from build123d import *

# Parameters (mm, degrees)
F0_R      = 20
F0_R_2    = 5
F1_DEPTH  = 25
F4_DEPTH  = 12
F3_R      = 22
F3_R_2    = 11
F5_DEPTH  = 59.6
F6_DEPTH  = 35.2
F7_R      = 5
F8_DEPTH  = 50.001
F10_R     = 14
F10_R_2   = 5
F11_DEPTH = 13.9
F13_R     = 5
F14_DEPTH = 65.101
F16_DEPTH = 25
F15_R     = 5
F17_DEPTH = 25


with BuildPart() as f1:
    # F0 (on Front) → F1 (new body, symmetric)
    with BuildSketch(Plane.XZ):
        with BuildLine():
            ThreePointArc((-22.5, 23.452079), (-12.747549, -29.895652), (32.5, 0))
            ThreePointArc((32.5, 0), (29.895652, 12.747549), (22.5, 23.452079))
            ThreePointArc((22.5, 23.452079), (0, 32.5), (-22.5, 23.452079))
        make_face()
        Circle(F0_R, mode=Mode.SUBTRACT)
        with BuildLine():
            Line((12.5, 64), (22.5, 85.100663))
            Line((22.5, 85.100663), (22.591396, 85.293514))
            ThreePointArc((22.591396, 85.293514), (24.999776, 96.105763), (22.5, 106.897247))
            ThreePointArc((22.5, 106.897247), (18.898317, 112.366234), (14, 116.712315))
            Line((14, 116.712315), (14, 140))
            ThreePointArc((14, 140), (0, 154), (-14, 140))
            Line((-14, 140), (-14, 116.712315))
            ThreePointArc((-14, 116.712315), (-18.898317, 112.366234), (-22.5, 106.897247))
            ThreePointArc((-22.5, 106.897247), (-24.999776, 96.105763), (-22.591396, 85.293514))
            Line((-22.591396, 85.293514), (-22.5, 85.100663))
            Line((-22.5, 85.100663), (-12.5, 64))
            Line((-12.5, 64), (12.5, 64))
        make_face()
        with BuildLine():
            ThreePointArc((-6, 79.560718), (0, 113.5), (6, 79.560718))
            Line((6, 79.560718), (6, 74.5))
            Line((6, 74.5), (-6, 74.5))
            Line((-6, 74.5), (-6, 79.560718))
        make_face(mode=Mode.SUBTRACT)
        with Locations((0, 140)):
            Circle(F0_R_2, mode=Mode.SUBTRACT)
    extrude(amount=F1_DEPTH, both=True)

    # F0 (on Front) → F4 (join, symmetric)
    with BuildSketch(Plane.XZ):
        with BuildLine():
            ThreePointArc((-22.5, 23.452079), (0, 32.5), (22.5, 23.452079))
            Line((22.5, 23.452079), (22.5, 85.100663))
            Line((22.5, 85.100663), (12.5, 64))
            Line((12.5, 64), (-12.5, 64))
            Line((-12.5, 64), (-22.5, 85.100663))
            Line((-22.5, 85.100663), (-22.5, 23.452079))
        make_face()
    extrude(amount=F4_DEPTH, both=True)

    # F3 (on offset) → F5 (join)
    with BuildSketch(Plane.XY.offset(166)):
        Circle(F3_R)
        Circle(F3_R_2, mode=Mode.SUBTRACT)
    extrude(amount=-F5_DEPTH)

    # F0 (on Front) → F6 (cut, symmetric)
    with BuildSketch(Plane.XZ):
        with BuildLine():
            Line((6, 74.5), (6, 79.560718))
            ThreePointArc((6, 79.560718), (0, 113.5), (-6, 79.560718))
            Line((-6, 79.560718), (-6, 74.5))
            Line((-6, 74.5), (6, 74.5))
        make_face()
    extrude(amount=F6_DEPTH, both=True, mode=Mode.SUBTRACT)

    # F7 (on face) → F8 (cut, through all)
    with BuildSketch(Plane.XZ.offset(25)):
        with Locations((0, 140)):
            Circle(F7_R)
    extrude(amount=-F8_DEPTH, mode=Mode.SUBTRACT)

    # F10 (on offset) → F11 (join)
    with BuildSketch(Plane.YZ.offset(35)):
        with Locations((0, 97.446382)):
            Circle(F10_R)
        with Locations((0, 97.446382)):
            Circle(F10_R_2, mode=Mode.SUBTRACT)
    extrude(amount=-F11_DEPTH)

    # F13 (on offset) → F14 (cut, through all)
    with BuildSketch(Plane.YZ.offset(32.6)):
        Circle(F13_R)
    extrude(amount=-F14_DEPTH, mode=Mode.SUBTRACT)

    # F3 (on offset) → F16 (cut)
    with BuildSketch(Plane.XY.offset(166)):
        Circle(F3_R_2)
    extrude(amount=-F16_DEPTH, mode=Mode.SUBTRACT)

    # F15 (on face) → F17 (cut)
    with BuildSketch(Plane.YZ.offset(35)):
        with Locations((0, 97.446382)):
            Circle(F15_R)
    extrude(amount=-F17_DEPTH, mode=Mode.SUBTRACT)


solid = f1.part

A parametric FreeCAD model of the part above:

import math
import FreeCAD as App
import Part
import Sketcher
Q = App.Units.Quantity

doc = App.newDocument("Part")
body = doc.addObject("PartDesign::Body", "Body")
body.AllowCompound = True

# Sketch on XZ plane
sketch1 = body.newObject("Sketcher::SketchObject", "Sketch")
sketch1.AttachmentSupport = (doc.getObject("XZ_Plane"), [""])
sketch1.MapMode = "FlatFace"
sketch1.addGeometry(Part.ArcOfCircle(Part.Circle(App.Vector(0, 0, 0), App.Vector(0, 0, 1), 32.5), math.radians(134), math.radians(360)), False)
sketch1.addGeometry(Part.ArcOfCircle(Part.Circle(App.Vector(0, 0, 0), App.Vector(0, 0, 1), 32.5), math.radians(0), math.radians(46)), False)
sketch1.addGeometry(Part.ArcOfCircle(Part.Circle(App.Vector(0, 0, 0), App.Vector(0, 0, 1), 32.5), math.radians(46), math.radians(134)), False)
sketch1.addGeometry(Part.Circle(App.Vector(0, 0, 0), App.Vector(0, 0, 1), 20), False)
sketch1.addGeometry(Part.LineSegment(App.Vector(12.5, 64, 0), App.Vector(22.5, 85.1, 0)), False)
sketch1.addGeometry(Part.LineSegment(App.Vector(22.5, 85.1, 0), App.Vector(22.59, 85.29, 0)), False)
sketch1.addGeometry(Part.ArcOfCircle(Part.Circle(App.Vector(0, 96, 0), App.Vector(0, 0, 1), 25), math.radians(-25), math.radians(26)), False)
sketch1.addGeometry(Part.ArcOfCircle(Part.Circle(App.Vector(0, 96, 0), App.Vector(0, 0, 1), 25), math.radians(26), math.radians(56)), False)
sketch1.addGeometry(Part.LineSegment(App.Vector(14, 116.71, 0), App.Vector(14, 140, 0)), False)
sketch1.addGeometry(Part.ArcOfCircle(Part.Circle(App.Vector(0, 140, 0), App.Vector(0, 0, 1), 14), math.radians(0), math.radians(180)), False)
sketch1.addGeometry(Part.LineSegment(App.Vector(-14, 140, 0), App.Vector(-14, 116.71, 0)), False)
sketch1.addGeometry(Part.ArcOfCircle(Part.Circle(App.Vector(0, 96, 0), App.Vector(0, 0, 1), 25), math.radians(124), math.radians(154)), False)
sketch1.addGeometry(Part.ArcOfCircle(Part.Circle(App.Vector(0, 96, 0), App.Vector(0, 0, 1), 25), math.radians(154), math.radians(205)), False)
sketch1.addGeometry(Part.LineSegment(App.Vector(-22.59, 85.29, 0), App.Vector(-22.5, 85.1, 0)), False)
sketch1.addGeometry(Part.LineSegment(App.Vector(-22.5, 85.1, 0), App.Vector(-12.5, 64, 0)), False)
sketch1.addGeometry(Part.LineSegment(App.Vector(-12.5, 64, 0), App.Vector(12.5, 64, 0)), False)
sketch1.addGeometry(Part.LineSegment(App.Vector(-6, 74.5, 0), App.Vector(-6, 79.56, 0)), False)
sketch1.addGeometry(Part.ArcOfCircle(Part.Circle(App.Vector(0, 96, 0), App.Vector(0, 0, 1), 17.5), math.radians(-70), math.radians(250)), False)
sketch1.addGeometry(Part.LineSegment(App.Vector(6, 79.56, 0), App.Vector(6, 74.5, 0)), False)
sketch1.addGeometry(Part.LineSegment(App.Vector(6, 74.5, 0), App.Vector(-6, 74.5, 0)), False)
sketch1.addGeometry(Part.Circle(App.Vector(0, 140, 0), App.Vector(0, 0, 1), 5), False)
sketch1.addConstraint(Sketcher.Constraint("Tangent", 0, 2, 1, 1))
sketch1.addConstraint(Sketcher.Constraint("Tangent", 1, 2, 2, 1))
sketch1.addConstraint(Sketcher.Constraint("Tangent", 2, 2, 0, 1))
sketch1.addConstraint(Sketcher.Constraint("Coincident", 4, 2, 5, 1))
sketch1.addConstraint(Sketcher.Constraint("Tangent", 5, 2, 6, 1))
sketch1.addConstraint(Sketcher.Constraint("Tangent", 6, 2, 7, 1))
sketch1.addConstraint(Sketcher.Constraint("Coincident", 7, 2, 8, 1))
sketch1.addConstraint(Sketcher.Constraint("Tangent", 8, 2, 9, 1))
sketch1.addConstraint(Sketcher.Constraint("Tangent", 9, 2, 10, 1))
sketch1.addConstraint(Sketcher.Constraint("Coincident", 10, 2, 11, 1))
sketch1.addConstraint(Sketcher.Constraint("Tangent", 11, 2, 12, 1))
sketch1.addConstraint(Sketcher.Constraint("Tangent", 12, 2, 13, 1))
sketch1.addConstraint(Sketcher.Constraint("Coincident", 13, 2, 14, 1))
sketch1.addConstraint(Sketcher.Constraint("Coincident", 14, 2, 15, 1))
sketch1.addConstraint(Sketcher.Constraint("Coincident", 15, 2, 4, 1))
sketch1.addConstraint(Sketcher.Constraint("Coincident", 16, 2, 17, 2))
sketch1.addConstraint(Sketcher.Constraint("Coincident", 17, 1, 18, 1))
sketch1.addConstraint(Sketcher.Constraint("Coincident", 18, 2, 19, 1))
sketch1.addConstraint(Sketcher.Constraint("Coincident", 19, 2, 16, 1))
sketch1.addConstraint(Sketcher.Constraint("Vertical", 8))
sketch1.addConstraint(Sketcher.Constraint("Vertical", 10))
sketch1.addConstraint(Sketcher.Constraint("Horizontal", 15))
sketch1.addConstraint(Sketcher.Constraint("Vertical", 16))
sketch1.addConstraint(Sketcher.Constraint("Vertical", 18))
sketch1.addConstraint(Sketcher.Constraint("Horizontal", 19))
sketch1.addConstraint(Sketcher.Constraint("Coincident", 0, 3, -1, 1))
sketch1.addConstraint(Sketcher.Constraint("Coincident", 3, 3, -1, 1))
sketch1.addConstraint(Sketcher.Constraint("Coincident", 11, 3, 6, 3))
sketch1.addConstraint(Sketcher.Constraint("Coincident", 17, 3, 6, 3))
sketch1.addConstraint(Sketcher.Constraint("Coincident", 20, 3, 9, 3))
sketch1.addConstraint(Sketcher.Constraint("Equal", 7, 11))
sketch1.addConstraint(Sketcher.Constraint("Equal", 6, 12))
sketch1.addConstraint(Sketcher.Constraint("Symmetric", 7, 2, 10, 2, -2))
sketch1.addConstraint(Sketcher.Constraint("Symmetric", 6, 2, 11, 2, -2))
sketch1.addConstraint(Sketcher.Constraint("Symmetric", 4, 2, 13, 2, -2))
sketch1.addConstraint(Sketcher.Constraint("PointOnObject", 0, 2, -1))
sketch1.addConstraint(Sketcher.Constraint("Parallel", 4, 5))
sketch1.addConstraint(Sketcher.Constraint("Parallel", 13, 14))
sketch1.addConstraint(Sketcher.Constraint("Horizontal", 1, 2, 2, 2))
sketch1.addConstraint(Sketcher.Constraint("Horizontal", 16, 2, 17, 1))
sketch1.addConstraint(Sketcher.Constraint("Vertical", 1, 2, 4, 2))
sketch1.addConstraint(Sketcher.Constraint("Vertical", 4, 2, 6, 2))
sketch1.addConstraint(Sketcher.Constraint("Diameter", 3, Q("40 mm")))
sketch1.addConstraint(Sketcher.Constraint("Diameter", 20, Q("10 mm")))
sketch1.addConstraint(Sketcher.Constraint("Radius", 9, Q("14 mm")))
sketch1.addConstraint(Sketcher.Constraint("Radius", 0, Q("32.5 mm")))
sketch1.addConstraint(Sketcher.Constraint("Radius", 17, Q("17.5 mm")))
sketch1.addConstraint(Sketcher.Constraint("DistanceX", 15, 1, 15, 2, Q("25 mm")))
sketch1.addConstraint(Sketcher.Constraint("DistanceX", 19, 2, 19, 1, Q("12 mm")))
sketch1.addConstraint(Sketcher.Constraint("DistanceY", -1, 1, 6, 3, Q("95.999999 mm")))
sketch1.addConstraint(Sketcher.Constraint("DistanceY", -1, 1, 9, 3, Q("140 mm")))
sketch1.addConstraint(Sketcher.Constraint("DistanceY", -1, 1, 14, 2, Q("64 mm")))
sketch1.addConstraint(Sketcher.Constraint("DistanceX", 1, 2, 0, 2, Q("10 mm")))
sketch1.addConstraint(Sketcher.Constraint("DistanceY", -1, 1, 18, 2, Q("74.5 mm")))
sketch1.addConstraint(Sketcher.Constraint("Radius", 6, Q("25.000003 mm")))
pad1 = body.newObject("PartDesign::Pad", "Pad")
pad1.Profile = sketch1
pad1.Length = 50
pad1.Midplane = True

# Sketch on XZ plane
sketch2 = body.newObject("Sketcher::SketchObject", "Sketch001")
sketch2.AttachmentSupport = (doc.getObject("XZ_Plane"), [""])
sketch2.MapMode = "FlatFace"
sketch2.addGeometry(Part.ArcOfCircle(Part.Circle(App.Vector(0, 0, 0), App.Vector(0, 0, 1), 33), math.radians(46), math.radians(134)), False)
sketch2.addGeometry(Part.LineSegment(App.Vector(22, 23, 0), App.Vector(22, 85, 0)), False)
sketch2.addGeometry(Part.LineSegment(App.Vector(22, 85, 0), App.Vector(12, 64, 0)), False)
sketch2.addGeometry(Part.LineSegment(App.Vector(12, 64, 0), App.Vector(-12, 64, 0)), False)
sketch2.addGeometry(Part.LineSegment(App.Vector(-12, 64, 0), App.Vector(-22, 85, 0)), False)
sketch2.addGeometry(Part.LineSegment(App.Vector(-22, 85, 0), App.Vector(-22, 23, 0)), False)
sketch2.addConstraint(Sketcher.Constraint("Coincident", 0, 1, 1, 1))
sketch2.addConstraint(Sketcher.Constraint("Coincident", 1, 2, 2, 1))
sketch2.addConstraint(Sketcher.Constraint("Coincident", 2, 2, 3, 1))
sketch2.addConstraint(Sketcher.Constraint("Coincident", 3, 2, 4, 1))
sketch2.addConstraint(Sketcher.Constraint("Coincident", 4, 2, 5, 1))
sketch2.addConstraint(Sketcher.Constraint("Coincident", 5, 2, 0, 2))
sketch2.addConstraint(Sketcher.Constraint("Vertical", 1))
sketch2.addConstraint(Sketcher.Constraint("Horizontal", 3))
sketch2.addConstraint(Sketcher.Constraint("Vertical", 5))
sketch2.addConstraint(Sketcher.Constraint("Coincident", 0, 3, -1, 1))
sketch2.addConstraint(Sketcher.Constraint("Symmetric", 1, 2, 4, 2, -2))
sketch2.addConstraint(Sketcher.Constraint("Equal", 2, 4))
sketch2.addConstraint(Sketcher.Constraint("Radius", 0, Q("32.500001 mm")))
sketch2.addConstraint(Sketcher.Constraint("DistanceX", 3, 2, 3, 1, Q("25 mm")))
sketch2.addConstraint(Sketcher.Constraint("DistanceY", -1, 1, 2, 2, Q("64 mm")))
sketch2.addConstraint(Sketcher.Constraint("DistanceX", 2, 2, 1, 2, Q("10 mm")))
sketch2.addConstraint(Sketcher.Constraint("Distance", 2, Q("23.350331 mm")))
pad2 = body.newObject("PartDesign::Pad", "Pad001")
pad2.Profile = sketch2
pad2.Length = 24
pad2.Midplane = True

# Sketch on XY plane
sketch3 = body.newObject("Sketcher::SketchObject", "Sketch002")
sketch3.AttachmentSupport = (doc.getObject("XY_Plane"), [""])
sketch3.MapMode = "FlatFace"
sketch3.AttachmentOffset = App.Placement(App.Vector(0, 0, 166), App.Rotation())
sketch3.addGeometry(Part.Circle(App.Vector(0, 0, 0), App.Vector(0, 0, 1), 22), False)
sketch3.addGeometry(Part.Circle(App.Vector(0, 0, 0), App.Vector(0, 0, 1), 11), False)
sketch3.addConstraint(Sketcher.Constraint("Coincident", 0, 3, -1, 1))
sketch3.addConstraint(Sketcher.Constraint("Coincident", 1, 3, -1, 1))
sketch3.addConstraint(Sketcher.Constraint("Diameter", 0, Q("44 mm")))
sketch3.addConstraint(Sketcher.Constraint("Diameter", 1, Q("22 mm")))
pad3 = body.newObject("PartDesign::Pad", "Pad002")
pad3.Profile = sketch3
pad3.Length = 59.6
pad3.Reversed = True

# Sketch on XZ plane
sketch4 = body.newObject("Sketcher::SketchObject", "Sketch003")
sketch4.AttachmentSupport = (doc.getObject("XZ_Plane"), [""])
sketch4.MapMode = "FlatFace"
sketch4.addGeometry(Part.LineSegment(App.Vector(6, 74, 0), App.Vector(6, 80, 0)), False)
sketch4.addGeometry(Part.ArcOfCircle(Part.Circle(App.Vector(0, 96, 0), App.Vector(0, 0, 1), 17), math.radians(-70), math.radians(250)), False)
sketch4.addGeometry(Part.LineSegment(App.Vector(-6, 80, 0), App.Vector(-6, 74, 0)), False)
sketch4.addGeometry(Part.LineSegment(App.Vector(-6, 74, 0), App.Vector(6, 74, 0)), False)
sketch4.addConstraint(Sketcher.Constraint("Coincident", 0, 2, 1, 1))
sketch4.addConstraint(Sketcher.Constraint("Coincident", 1, 2, 2, 1))
sketch4.addConstraint(Sketcher.Constraint("Coincident", 2, 2, 3, 1))
sketch4.addConstraint(Sketcher.Constraint("Coincident", 3, 2, 0, 1))
sketch4.addConstraint(Sketcher.Constraint("Vertical", 0))
sketch4.addConstraint(Sketcher.Constraint("Vertical", 2))
sketch4.addConstraint(Sketcher.Constraint("Horizontal", 3))
sketch4.addConstraint(Sketcher.Constraint("Symmetric", 0, 2, 1, 2, -2))
sketch4.addConstraint(Sketcher.Constraint("Radius", 1, Q("17.5 mm")))
sketch4.addConstraint(Sketcher.Constraint("DistanceX", 3, 1, 3, 2, Q("12 mm")))
sketch4.addConstraint(Sketcher.Constraint("DistanceY", -1, 1, 1, 3, Q("96 mm")))
sketch4.addConstraint(Sketcher.Constraint("DistanceY", -1, 1, 2, 2, Q("74.5 mm")))
pocket1 = body.newObject("PartDesign::Pocket", "Pocket")
pocket1.Profile = sketch4
pocket1.Length = 70.4
pocket1.Midplane = True

# Sketch on XZ plane
sketch5 = body.newObject("Sketcher::SketchObject", "Sketch004")
sketch5.AttachmentSupport = (doc.getObject("XZ_Plane"), [""])
sketch5.MapMode = "FlatFace"
sketch5.AttachmentOffset = App.Placement(App.Vector(0, 0, 25), App.Rotation())
sketch5.addGeometry(Part.Circle(App.Vector(0, 140, 0), App.Vector(0, 0, 1), 5), False)
sketch5.addConstraint(Sketcher.Constraint("PointOnObject", 0, 3, -2))
sketch5.addConstraint(Sketcher.Constraint("Diameter", 0, Q("10 mm")))
sketch5.addConstraint(Sketcher.Constraint("DistanceY", -1, 1, 0, 3, Q("140 mm")))
pocket2 = body.newObject("PartDesign::Pocket", "Pocket001")
pocket2.Profile = sketch5
pocket2.Type = "ThroughAll"

# Sketch on YZ plane
sketch6 = body.newObject("Sketcher::SketchObject", "Sketch005")
sketch6.AttachmentSupport = (doc.getObject("YZ_Plane"), [""])
sketch6.MapMode = "FlatFace"
sketch6.AttachmentOffset = App.Placement(App.Vector(0, 0, 35), App.Rotation())
sketch6.addGeometry(Part.Circle(App.Vector(0, 97, 0), App.Vector(0, 0, 1), 14), False)
sketch6.addGeometry(Part.Circle(App.Vector(0, 97, 0), App.Vector(0, 0, 1), 5), False)
sketch6.addConstraint(Sketcher.Constraint("Coincident", 1, 3, 0, 3))
sketch6.addConstraint(Sketcher.Constraint("PointOnObject", 0, 3, -2))
sketch6.addConstraint(Sketcher.Constraint("Diameter", 0, Q("28 mm")))
sketch6.addConstraint(Sketcher.Constraint("Diameter", 1, Q("10 mm")))
sketch6.addConstraint(Sketcher.Constraint("DistanceY", -1, 1, 0, 3, Q("97.446382 mm")))
pad4 = body.newObject("PartDesign::Pad", "Pad003")
pad4.Profile = sketch6
pad4.Length = 13.9
pad4.Reversed = True

# Sketch on YZ plane
sketch7 = body.newObject("Sketcher::SketchObject", "Sketch006")
sketch7.AttachmentSupport = (doc.getObject("YZ_Plane"), [""])
sketch7.MapMode = "FlatFace"
sketch7.AttachmentOffset = App.Placement(App.Vector(0, 0, 32.6), App.Rotation())
sketch7.addGeometry(Part.Circle(App.Vector(0, 0, 0), App.Vector(0, 0, 1), 5), False)
sketch7.addConstraint(Sketcher.Constraint("Coincident", 0, 3, -1, 1))
sketch7.addConstraint(Sketcher.Constraint("Diameter", 0, Q("10 mm")))
pocket3 = body.newObject("PartDesign::Pocket", "Pocket002")
pocket3.Profile = sketch7
pocket3.Type = "ThroughAll"

# Sketch on XY plane
sketch8 = body.newObject("Sketcher::SketchObject", "Sketch007")
sketch8.AttachmentSupport = (doc.getObject("XY_Plane"), [""])
sketch8.MapMode = "FlatFace"
sketch8.AttachmentOffset = App.Placement(App.Vector(0, 0, 166), App.Rotation())
sketch8.addGeometry(Part.Circle(App.Vector(0, 0, 0), App.Vector(0, 0, 1), 11), False)
sketch8.addConstraint(Sketcher.Constraint("Coincident", 0, 3, -1, 1))
sketch8.addConstraint(Sketcher.Constraint("Diameter", 0, Q("22 mm")))
pocket4 = body.newObject("PartDesign::Pocket", "Pocket003")
pocket4.Profile = sketch8
pocket4.Length = 25

# Sketch on YZ plane
sketch9 = body.newObject("Sketcher::SketchObject", "Sketch008")
sketch9.AttachmentSupport = (doc.getObject("YZ_Plane"), [""])
sketch9.MapMode = "FlatFace"
sketch9.AttachmentOffset = App.Placement(App.Vector(0, 0, 35), App.Rotation())
sketch9.addGeometry(Part.Circle(App.Vector(0, 97, 0), App.Vector(0, 0, 1), 5), False)
sketch9.addConstraint(Sketcher.Constraint("PointOnObject", 0, 3, -2))
sketch9.addConstraint(Sketcher.Constraint("Diameter", 0, Q("10 mm")))
sketch9.addConstraint(Sketcher.Constraint("DistanceY", -1, 1, 0, 3, Q("97.446382 mm")))
pocket5 = body.newObject("PartDesign::Pocket", "Pocket004")
pocket5.Profile = sketch9
pocket5.Length = 25

doc.recompute()
